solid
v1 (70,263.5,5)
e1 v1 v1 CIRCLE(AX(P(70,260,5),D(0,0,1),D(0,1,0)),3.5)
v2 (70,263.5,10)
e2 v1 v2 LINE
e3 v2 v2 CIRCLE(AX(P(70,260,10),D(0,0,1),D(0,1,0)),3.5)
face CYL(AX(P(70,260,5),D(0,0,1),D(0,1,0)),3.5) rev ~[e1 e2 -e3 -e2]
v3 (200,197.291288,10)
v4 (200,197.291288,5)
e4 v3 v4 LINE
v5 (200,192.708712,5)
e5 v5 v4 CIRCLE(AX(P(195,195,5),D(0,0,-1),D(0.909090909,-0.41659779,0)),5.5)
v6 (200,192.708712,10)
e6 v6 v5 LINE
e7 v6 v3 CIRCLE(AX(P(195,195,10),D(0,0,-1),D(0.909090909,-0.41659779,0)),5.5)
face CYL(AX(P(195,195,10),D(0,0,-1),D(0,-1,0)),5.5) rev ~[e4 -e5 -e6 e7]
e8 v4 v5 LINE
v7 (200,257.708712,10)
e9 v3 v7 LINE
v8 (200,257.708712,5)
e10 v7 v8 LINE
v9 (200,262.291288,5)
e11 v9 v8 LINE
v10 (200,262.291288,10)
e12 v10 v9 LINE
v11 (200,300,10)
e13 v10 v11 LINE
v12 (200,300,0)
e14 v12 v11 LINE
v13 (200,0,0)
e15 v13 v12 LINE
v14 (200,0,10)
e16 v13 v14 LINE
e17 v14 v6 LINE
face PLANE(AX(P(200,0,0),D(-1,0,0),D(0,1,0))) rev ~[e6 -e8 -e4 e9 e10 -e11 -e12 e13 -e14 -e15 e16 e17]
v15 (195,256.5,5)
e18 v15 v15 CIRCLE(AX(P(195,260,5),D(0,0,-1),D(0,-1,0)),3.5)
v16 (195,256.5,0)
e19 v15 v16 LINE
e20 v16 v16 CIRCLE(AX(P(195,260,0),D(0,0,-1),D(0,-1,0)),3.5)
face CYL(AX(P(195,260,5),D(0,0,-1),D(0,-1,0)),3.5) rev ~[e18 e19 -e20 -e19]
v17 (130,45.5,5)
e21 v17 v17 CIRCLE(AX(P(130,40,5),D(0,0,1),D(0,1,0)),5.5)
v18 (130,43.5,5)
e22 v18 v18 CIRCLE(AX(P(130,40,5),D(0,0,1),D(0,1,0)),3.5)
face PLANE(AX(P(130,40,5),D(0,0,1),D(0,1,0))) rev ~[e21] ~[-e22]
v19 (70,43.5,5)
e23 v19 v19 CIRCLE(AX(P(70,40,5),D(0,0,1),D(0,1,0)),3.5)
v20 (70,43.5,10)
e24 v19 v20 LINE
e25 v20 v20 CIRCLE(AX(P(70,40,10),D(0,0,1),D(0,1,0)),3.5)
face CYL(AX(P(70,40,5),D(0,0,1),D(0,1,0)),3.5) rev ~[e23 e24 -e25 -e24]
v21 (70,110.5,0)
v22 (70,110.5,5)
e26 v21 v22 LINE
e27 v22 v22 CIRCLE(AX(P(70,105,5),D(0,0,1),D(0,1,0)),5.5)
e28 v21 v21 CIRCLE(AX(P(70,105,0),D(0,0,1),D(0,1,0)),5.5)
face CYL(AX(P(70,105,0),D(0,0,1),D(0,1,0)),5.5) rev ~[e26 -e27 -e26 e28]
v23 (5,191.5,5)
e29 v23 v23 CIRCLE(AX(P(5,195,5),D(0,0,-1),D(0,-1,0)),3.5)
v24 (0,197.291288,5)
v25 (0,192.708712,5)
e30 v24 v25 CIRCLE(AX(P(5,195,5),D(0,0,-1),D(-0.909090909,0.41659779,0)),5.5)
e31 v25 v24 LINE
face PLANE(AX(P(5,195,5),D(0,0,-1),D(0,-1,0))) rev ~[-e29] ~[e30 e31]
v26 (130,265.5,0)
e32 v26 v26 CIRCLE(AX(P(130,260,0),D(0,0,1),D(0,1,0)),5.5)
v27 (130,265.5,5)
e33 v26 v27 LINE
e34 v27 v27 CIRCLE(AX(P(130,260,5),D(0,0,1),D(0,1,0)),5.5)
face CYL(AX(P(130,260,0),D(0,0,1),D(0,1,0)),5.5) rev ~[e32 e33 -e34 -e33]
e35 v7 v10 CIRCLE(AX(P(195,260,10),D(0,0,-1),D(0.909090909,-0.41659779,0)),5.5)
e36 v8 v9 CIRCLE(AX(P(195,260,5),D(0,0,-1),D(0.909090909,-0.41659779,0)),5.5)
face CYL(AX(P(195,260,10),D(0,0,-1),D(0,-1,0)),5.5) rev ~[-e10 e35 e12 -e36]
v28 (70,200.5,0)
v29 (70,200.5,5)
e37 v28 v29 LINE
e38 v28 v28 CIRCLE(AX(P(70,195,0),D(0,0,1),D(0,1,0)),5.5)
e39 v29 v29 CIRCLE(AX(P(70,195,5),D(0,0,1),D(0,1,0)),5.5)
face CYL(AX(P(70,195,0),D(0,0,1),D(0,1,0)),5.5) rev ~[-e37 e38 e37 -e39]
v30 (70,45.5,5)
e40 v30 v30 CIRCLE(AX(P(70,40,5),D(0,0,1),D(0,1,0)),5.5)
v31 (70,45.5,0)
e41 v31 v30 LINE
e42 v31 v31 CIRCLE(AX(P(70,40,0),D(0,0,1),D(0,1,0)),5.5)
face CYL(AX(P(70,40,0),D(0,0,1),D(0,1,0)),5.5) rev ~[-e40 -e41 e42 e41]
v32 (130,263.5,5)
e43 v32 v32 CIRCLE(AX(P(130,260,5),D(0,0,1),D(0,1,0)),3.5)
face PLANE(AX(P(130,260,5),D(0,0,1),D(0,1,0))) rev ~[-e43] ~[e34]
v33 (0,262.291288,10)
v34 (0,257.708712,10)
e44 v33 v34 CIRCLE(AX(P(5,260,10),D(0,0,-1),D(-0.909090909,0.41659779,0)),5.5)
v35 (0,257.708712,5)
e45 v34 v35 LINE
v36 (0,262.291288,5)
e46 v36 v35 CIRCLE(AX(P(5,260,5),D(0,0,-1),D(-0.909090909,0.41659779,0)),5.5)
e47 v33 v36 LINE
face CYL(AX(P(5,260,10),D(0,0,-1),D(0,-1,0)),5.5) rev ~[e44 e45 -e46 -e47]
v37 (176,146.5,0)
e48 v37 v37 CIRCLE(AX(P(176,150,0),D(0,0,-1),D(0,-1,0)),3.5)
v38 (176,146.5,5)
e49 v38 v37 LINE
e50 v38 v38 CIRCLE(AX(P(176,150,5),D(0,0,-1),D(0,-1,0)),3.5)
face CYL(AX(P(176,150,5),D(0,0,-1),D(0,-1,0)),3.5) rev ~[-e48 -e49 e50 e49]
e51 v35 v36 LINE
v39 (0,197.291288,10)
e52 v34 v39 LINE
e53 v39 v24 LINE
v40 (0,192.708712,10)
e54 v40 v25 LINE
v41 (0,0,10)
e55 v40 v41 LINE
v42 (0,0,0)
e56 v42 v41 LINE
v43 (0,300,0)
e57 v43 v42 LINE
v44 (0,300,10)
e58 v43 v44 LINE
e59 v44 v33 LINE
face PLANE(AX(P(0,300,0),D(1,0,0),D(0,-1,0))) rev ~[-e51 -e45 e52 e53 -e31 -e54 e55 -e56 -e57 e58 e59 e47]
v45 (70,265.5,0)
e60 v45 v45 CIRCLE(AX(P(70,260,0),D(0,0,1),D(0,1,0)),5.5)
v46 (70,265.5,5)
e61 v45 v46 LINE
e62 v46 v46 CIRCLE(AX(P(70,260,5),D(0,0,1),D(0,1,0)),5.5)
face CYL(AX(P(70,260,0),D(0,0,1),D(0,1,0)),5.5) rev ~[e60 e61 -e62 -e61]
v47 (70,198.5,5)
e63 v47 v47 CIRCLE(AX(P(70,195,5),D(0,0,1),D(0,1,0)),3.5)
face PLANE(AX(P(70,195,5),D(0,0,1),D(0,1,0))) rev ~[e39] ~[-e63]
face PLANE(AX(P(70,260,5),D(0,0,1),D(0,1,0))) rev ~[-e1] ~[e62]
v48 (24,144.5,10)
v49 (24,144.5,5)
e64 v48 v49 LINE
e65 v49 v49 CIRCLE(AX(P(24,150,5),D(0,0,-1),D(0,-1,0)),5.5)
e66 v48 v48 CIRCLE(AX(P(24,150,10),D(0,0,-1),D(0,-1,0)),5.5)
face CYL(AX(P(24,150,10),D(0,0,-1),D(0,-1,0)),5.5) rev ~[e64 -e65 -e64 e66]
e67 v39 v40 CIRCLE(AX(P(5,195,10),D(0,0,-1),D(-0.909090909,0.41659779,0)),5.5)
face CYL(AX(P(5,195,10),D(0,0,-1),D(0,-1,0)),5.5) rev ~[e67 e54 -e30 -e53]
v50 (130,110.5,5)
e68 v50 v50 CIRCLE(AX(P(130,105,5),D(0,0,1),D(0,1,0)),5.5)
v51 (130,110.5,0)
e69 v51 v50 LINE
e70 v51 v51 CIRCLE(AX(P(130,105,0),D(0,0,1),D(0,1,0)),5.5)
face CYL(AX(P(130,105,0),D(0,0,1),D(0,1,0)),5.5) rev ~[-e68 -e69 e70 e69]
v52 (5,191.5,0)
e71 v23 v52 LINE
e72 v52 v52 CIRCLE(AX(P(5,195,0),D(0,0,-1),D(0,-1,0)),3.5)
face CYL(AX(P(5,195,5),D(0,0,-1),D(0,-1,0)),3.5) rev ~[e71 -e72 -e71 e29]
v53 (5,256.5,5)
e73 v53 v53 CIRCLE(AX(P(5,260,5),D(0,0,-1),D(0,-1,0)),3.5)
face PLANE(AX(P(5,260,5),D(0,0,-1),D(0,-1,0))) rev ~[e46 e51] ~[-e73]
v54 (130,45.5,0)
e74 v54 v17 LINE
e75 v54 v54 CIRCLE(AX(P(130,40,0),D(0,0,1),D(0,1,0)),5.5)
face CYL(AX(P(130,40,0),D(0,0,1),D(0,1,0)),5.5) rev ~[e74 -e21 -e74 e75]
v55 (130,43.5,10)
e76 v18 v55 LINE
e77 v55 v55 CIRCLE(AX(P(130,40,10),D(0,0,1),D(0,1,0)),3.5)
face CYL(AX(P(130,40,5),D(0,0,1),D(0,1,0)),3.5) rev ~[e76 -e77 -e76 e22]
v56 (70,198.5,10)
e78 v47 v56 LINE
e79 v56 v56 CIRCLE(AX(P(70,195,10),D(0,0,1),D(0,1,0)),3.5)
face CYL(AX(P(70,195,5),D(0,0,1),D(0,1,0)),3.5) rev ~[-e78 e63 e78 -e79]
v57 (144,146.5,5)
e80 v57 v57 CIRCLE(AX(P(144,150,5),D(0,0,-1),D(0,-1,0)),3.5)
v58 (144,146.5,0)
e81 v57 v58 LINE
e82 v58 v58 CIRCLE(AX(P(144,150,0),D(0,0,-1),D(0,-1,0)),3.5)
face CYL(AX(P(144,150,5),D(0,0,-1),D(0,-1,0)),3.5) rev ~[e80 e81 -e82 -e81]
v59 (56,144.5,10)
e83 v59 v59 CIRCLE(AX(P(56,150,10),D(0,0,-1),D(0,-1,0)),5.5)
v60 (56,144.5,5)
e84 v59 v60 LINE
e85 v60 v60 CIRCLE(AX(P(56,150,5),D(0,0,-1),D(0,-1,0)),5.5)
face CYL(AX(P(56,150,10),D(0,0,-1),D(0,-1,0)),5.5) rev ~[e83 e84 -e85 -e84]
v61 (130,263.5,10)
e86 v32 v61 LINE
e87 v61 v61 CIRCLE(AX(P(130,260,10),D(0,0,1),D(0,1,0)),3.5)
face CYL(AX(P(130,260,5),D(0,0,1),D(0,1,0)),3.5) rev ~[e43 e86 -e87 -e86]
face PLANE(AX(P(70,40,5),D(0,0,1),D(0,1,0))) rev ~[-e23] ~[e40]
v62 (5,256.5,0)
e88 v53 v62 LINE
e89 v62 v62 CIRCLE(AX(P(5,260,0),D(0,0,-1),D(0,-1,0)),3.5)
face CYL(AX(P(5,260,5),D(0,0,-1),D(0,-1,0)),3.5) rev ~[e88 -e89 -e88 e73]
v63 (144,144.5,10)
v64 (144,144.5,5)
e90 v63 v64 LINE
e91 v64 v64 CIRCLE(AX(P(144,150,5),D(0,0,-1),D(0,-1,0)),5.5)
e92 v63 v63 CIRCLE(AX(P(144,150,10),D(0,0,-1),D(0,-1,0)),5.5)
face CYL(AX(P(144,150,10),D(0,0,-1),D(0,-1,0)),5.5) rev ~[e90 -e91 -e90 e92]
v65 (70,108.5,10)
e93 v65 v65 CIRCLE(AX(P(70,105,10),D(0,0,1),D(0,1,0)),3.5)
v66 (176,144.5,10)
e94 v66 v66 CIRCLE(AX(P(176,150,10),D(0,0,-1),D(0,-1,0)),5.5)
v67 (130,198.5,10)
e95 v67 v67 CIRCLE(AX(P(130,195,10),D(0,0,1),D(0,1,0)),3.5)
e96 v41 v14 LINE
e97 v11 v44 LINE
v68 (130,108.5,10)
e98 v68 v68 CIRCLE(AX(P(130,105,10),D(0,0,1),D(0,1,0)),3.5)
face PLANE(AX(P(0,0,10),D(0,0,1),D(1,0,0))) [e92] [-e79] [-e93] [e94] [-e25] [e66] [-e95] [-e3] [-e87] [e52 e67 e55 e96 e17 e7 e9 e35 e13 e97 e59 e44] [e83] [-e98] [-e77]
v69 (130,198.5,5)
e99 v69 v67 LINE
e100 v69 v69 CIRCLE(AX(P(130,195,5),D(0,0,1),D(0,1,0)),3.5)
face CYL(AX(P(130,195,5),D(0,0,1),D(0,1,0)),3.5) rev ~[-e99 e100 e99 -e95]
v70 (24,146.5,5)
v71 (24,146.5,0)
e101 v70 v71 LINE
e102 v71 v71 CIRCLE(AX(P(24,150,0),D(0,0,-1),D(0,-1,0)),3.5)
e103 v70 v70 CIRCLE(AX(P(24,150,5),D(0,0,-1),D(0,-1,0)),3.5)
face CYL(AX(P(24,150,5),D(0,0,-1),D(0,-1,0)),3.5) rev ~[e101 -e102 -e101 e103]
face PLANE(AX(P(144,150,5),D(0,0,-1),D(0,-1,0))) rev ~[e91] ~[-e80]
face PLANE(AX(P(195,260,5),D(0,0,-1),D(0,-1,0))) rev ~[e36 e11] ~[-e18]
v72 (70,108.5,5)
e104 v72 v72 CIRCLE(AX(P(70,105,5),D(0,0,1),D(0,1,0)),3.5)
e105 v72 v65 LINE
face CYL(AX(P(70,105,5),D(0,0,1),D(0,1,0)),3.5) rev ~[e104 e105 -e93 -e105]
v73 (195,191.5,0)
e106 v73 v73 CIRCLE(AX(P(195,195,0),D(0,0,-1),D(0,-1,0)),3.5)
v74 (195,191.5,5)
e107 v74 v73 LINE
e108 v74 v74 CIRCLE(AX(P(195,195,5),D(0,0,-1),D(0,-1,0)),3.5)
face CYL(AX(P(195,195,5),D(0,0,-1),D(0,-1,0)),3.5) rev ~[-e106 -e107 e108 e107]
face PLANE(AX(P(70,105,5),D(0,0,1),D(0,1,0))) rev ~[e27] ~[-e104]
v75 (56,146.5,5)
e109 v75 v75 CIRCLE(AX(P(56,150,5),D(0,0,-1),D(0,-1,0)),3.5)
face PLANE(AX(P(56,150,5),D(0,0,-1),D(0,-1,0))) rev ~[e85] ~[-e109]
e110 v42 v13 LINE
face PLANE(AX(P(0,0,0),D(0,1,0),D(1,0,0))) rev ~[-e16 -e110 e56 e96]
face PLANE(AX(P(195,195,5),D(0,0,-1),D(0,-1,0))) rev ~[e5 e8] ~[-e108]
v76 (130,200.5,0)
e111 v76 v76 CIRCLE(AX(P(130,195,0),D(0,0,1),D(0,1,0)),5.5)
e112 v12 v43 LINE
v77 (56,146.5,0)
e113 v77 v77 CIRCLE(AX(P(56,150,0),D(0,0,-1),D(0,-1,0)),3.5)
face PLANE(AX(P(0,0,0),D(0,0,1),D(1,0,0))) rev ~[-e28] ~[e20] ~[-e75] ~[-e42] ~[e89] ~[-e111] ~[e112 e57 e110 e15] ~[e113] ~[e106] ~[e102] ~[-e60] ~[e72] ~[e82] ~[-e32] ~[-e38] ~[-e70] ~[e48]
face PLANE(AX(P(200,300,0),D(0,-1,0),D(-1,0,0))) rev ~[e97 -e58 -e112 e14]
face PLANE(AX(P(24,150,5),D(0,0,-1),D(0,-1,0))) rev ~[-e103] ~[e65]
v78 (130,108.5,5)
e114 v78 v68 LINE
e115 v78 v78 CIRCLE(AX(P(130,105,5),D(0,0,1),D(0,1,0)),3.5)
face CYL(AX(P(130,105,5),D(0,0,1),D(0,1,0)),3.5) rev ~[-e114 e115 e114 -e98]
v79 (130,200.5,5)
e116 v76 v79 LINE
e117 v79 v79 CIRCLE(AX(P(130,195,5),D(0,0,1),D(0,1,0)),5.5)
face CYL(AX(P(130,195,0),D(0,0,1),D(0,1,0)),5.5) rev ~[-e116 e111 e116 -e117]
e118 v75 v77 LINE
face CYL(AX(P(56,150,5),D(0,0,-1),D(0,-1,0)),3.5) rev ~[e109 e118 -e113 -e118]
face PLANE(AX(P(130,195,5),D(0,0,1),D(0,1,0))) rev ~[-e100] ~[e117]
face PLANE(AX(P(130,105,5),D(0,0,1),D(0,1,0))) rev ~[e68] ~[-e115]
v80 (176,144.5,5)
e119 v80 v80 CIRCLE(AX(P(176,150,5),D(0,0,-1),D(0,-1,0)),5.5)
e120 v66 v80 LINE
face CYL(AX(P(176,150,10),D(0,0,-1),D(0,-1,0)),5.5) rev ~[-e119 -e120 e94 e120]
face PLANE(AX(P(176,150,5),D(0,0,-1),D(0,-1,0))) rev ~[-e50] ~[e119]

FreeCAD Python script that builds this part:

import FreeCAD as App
import Part
import Sketcher

V = App.Vector


def add_polygon(sketch, points):
    """Adds a closed chain of lines whose ends are joined by coincident constraints."""
    first, n = sketch.GeometryCount, len(points)
    for a, b in zip(points, points[1:] + points[:1]):
        sketch.addGeometry(Part.LineSegment(App.Vector(*a, 0), App.Vector(*b, 0)), False)
    for i in range(n):
        sketch.addConstraint(Sketcher.Constraint("Coincident", first + i, 2, first + (i + 1) % n, 1))

doc = App.newDocument("Part")
params = doc.addObject("Spreadsheet::Sheet", "Params")
for row, (alias, value) in enumerate([
    ("sketch1_width", "200 mm"),
    ("sketch1_height", "300 mm"),
    ("pad1_length", "10 mm"),
    ("sketch2_diameter", "7 mm"),
    ("hole_diameter", "7 mm"),
    ("hole_cbore_diameter", "11 mm"),
    ("hole_cbore_depth", "5 mm"),
    ("sketch3_diameter", "7 mm"),
    ("hole2_diameter", "7 mm"),
    ("hole2_cbore_diameter", "11 mm"),
    ("hole2_cbore_depth", "5 mm"),
    ("sketch4_diameter", "7 mm"),
    ("hole3_diameter", "7 mm"),
    ("hole3_cbore_diameter", "11 mm"),
    ("hole3_cbore_depth", "5 mm"),
], start=1):
    params.set(f"A{row}", alias)
    params.set(f"B{row}", "=" + value)
    params.setAlias(f"B{row}", alias)

body = doc.addObject("PartDesign::Body", "Body")

# Sketch on XY plane
sketch1 = body.newObject("Sketcher::SketchObject", "Sketch")
sketch1.AttachmentSupport = (doc.getObject("XY_Plane"), [""])
sketch1.MapMode = "FlatFace"
add_polygon(sketch1, [(0, 300), (0, 0), (200, 0), (200, 300)])  # lines 0-3
sketch1.addConstraint([
    Sketcher.Constraint("Vertical", 0),
    Sketcher.Constraint("Horizontal", 1),
    Sketcher.Constraint("Vertical", 2),
    Sketcher.Constraint("Horizontal", 3),
    Sketcher.Constraint("Coincident", 0, 2, -1, 1),
    Sketcher.Constraint("DistanceX", 1, 1, 1, 2, 200.0),
    Sketcher.Constraint("DistanceY", 0, 2, 0, 1, 300.0),
])
sketch1.setExpression("Constraints[9]", "Params.sketch1_width")
sketch1.setExpression("Constraints[10]", "Params.sketch1_height")
pad1 = body.newObject("PartDesign::Pad", "Pad")
pad1.Profile = sketch1
pad1.setExpression("Length", "Params.pad1_length")

# Sketch on XY plane
sketch2 = body.newObject("Sketcher::SketchObject", "Sketch001")
sketch2.AttachmentSupport = (doc.getObject("XY_Plane"), [""])
sketch2.MapMode = "FlatFace"
sketch2.AttachmentOffset = App.Placement(V(0, 0, 10), App.Rotation())
sketch2.addGeometry([
    Part.Circle(V(195, 195, 0), V(0, 0, 1), 3.5),
    Part.Circle(V(195, 260, 0), V(0, 0, 1), 3.5),
    Part.Circle(V(5, 195, 0), V(0, 0, 1), 3.5),
    Part.Circle(V(5, 260, 0), V(0, 0, 1), 3.5),
], False)
sketch2.addConstraint([
    Sketcher.Constraint("Equal", 0, 1),
    Sketcher.Constraint("Equal", 1, 2),
    Sketcher.Constraint("Equal", 2, 3),
    Sketcher.Constraint("Horizontal", 0, 3, 2, 3),
    Sketcher.Constraint("Horizontal", 1, 3, 3, 3),
    Sketcher.Constraint("Vertical", 0, 3, 1, 3),
    Sketcher.Constraint("Vertical", 2, 3, 3, 3),
    Sketcher.Constraint("Diameter", 0, 7.0),
    Sketcher.Constraint("DistanceX", -1, 1, 0, 3, 195.0),
    Sketcher.Constraint("DistanceY", -1, 1, 0, 3, 195.0),
    Sketcher.Constraint("DistanceY", -1, 1, 1, 3, 260.0),
    Sketcher.Constraint("DistanceX", -1, 1, 2, 3, 5.0),
])
sketch2.setExpression("Constraints[7]", "Params.sketch2_diameter")
doc.recompute()
hole = body.newObject("PartDesign::Hole", "Hole")
hole.Profile = sketch2
hole.ThreadType = "None"
hole.setExpression("Diameter", "Params.hole_diameter")
hole.DepthType = "ThroughAll"
hole.HoleCutType = "Counterbore"
hole.setExpression("HoleCutDiameter", "Params.hole_cbore_diameter")
hole.setExpression("HoleCutDepth", "Params.hole_cbore_depth")

# Sketch on XY plane
sketch3 = body.newObject("Sketcher::SketchObject", "Sketch002")
sketch3.AttachmentSupport = (doc.getObject("XY_Plane"), [""])
sketch3.MapMode = "FlatFace"
sketch3.AttachmentOffset = App.Placement(V(0, 0, 10), App.Rotation())
sketch3.addGeometry([
    Part.Circle(V(176, 150, 0), V(0, 0, 1), 3.5),
    Part.Circle(V(144, 150, 0), V(0, 0, 1), 3.5),
    Part.Circle(V(56, 150, 0), V(0, 0, 1), 3.5),
    Part.Circle(V(24, 150, 0), V(0, 0, 1), 3.5),
], False)
sketch3.addConstraint([
    Sketcher.Constraint("Equal", 0, 1),
    Sketcher.Constraint("Equal", 1, 2),
    Sketcher.Constraint("Equal", 2, 3),
    Sketcher.Constraint("Horizontal", 0, 3, 1, 3),
    Sketcher.Constraint("Horizontal", 1, 3, 2, 3),
    Sketcher.Constraint("Horizontal", 2, 3, 3, 3),
    Sketcher.Constraint("Diameter", 0, 7.0),
    Sketcher.Constraint("DistanceX", -1, 1, 0, 3, 176.0),
    Sketcher.Constraint("DistanceY", -1, 1, 0, 3, 150.0),
    Sketcher.Constraint("DistanceX", -1, 1, 1, 3, 144.0),
    Sketcher.Constraint("DistanceX", -1, 1, 2, 3, 56.0),
    Sketcher.Constraint("DistanceX", -1, 1, 3, 3, 24.0),
])
sketch3.setExpression("Constraints[6]", "Params.sketch3_diameter")
doc.recompute()
hole2 = body.newObject("PartDesign::Hole", "Hole001")
hole2.Profile = sketch3
hole2.ThreadType = "None"
hole2.setExpression("Diameter", "Params.hole2_diameter")
hole2.DepthType = "ThroughAll"
hole2.HoleCutType = "Counterbore"
hole2.setExpression("HoleCutDiameter", "Params.hole2_cbore_diameter")
hole2.setExpression("HoleCutDepth", "Params.hole2_cbore_depth")

# Sketch on XY plane
sketch4 = body.newObject("Sketcher::SketchObject", "Sketch003")
sketch4.AttachmentSupport = (doc.getObject("XY_Plane"), [""])
sketch4.MapMode = "FlatFace"
sketch4.addGeometry([
    Part.Circle(V(130, 195, 0), V(0, 0, 1), 3.5),  # 0
    Part.Circle(V(130, 260, 0), V(0, 0, 1), 3.5),  # 1
    Part.Circle(V(70, 260, 0), V(0, 0, 1), 3.5),  # 2
    Part.Circle(V(70, 195, 0), V(0, 0, 1), 3.5),  # 3
    Part.Circle(V(70, 105, 0), V(0, 0, 1), 3.5),  # 4
    Part.Circle(V(130, 105, 0), V(0, 0, 1), 3.5),  # 5
    Part.Circle(V(130, 40, 0), V(0, 0, 1), 3.5),  # 6
    Part.Circle(V(70, 40, 0), V(0, 0, 1), 3.5),  # 7
], False)
sketch4.addConstraint([
    Sketcher.Constraint("Equal", 0, 1),
    Sketcher.Constraint("Equal", 1, 2),
    Sketcher.Constraint("Equal", 2, 3),
    Sketcher.Constraint("Equal", 3, 4),
    Sketcher.Constraint("Equal", 4, 5),
    Sketcher.Constraint("Equal", 5, 6),
    Sketcher.Constraint("Equal", 6, 7),
    Sketcher.Constraint("Horizontal", 1, 3, 2, 3),
    Sketcher.Constraint("Horizontal", 0, 3, 3, 3),
    Sketcher.Constraint("Horizontal", 4, 3, 5, 3),
    Sketcher.Constraint("Horizontal", 6, 3, 7, 3),
    Sketcher.Constraint("Vertical", 0, 3, 1, 3),
    Sketcher.Constraint("Vertical", 2, 3, 3, 3),
    Sketcher.Constraint("Vertical", 3, 3, 4, 3),
    Sketcher.Constraint("Vertical", 1, 3, 5, 3),
    Sketcher.Constraint("Vertical", 5, 3, 6, 3),
    Sketcher.Constraint("Vertical", 4, 3, 7, 3),
    Sketcher.Constraint("Diameter", 0, 7.0),
    Sketcher.Constraint("DistanceX", -1, 1, 0, 3, 130.0),
    Sketcher.Constraint("DistanceY", -1, 1, 0, 3, 195.0),
    Sketcher.Constraint("DistanceY", -1, 1, 1, 3, 260.0),
    Sketcher.Constraint("DistanceX", -1, 1, 2, 3, 70.0),
    Sketcher.Constraint("DistanceY", -1, 1, 4, 3, 105.0),
    Sketcher.Constraint("DistanceY", -1, 1, 6, 3, 40.0),
])
sketch4.setExpression("Constraints[17]", "Params.sketch4_diameter")
doc.recompute()
hole3 = body.newObject("PartDesign::Hole", "Hole002")
hole3.Profile = sketch4
hole3.ThreadType = "None"
hole3.setExpression("Diameter", "Params.hole3_diameter")
hole3.DepthType = "ThroughAll"
hole3.HoleCutType = "Counterbore"
hole3.setExpression("HoleCutDiameter", "Params.hole3_cbore_diameter")
hole3.setExpression("HoleCutDepth", "Params.hole3_cbore_depth")
hole3.Reversed = True

doc.recompute()
